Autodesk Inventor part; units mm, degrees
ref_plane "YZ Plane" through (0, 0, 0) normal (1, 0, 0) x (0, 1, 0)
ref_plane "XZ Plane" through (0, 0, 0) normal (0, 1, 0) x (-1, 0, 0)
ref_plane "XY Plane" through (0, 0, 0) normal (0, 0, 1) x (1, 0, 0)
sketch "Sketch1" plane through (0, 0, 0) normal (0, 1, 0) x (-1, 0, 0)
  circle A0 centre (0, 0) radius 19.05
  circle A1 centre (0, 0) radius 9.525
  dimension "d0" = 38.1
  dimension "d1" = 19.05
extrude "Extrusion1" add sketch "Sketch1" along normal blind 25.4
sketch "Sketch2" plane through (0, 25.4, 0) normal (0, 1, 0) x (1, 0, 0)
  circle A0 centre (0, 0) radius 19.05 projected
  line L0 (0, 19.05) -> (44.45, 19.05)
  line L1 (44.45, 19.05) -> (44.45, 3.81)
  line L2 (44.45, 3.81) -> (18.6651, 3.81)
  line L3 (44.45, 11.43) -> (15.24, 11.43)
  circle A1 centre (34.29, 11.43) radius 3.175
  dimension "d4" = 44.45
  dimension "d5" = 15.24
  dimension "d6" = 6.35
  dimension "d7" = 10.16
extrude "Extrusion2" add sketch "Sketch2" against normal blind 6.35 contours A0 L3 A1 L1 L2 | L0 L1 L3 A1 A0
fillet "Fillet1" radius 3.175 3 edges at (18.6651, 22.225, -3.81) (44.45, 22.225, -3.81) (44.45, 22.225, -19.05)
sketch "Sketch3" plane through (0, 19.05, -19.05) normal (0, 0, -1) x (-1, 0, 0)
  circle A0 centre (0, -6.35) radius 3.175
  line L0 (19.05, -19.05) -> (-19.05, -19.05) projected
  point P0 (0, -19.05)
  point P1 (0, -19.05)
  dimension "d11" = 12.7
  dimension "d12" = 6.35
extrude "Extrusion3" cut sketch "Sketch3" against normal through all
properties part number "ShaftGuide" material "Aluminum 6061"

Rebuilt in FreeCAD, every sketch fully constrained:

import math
import FreeCAD as App
import Part
import Sketcher
from FreeCAD import Vector
Q = App.Units.Quantity


def edges_at(feature, points):
    """Names of the edges that pass closest to the given points."""
    edges = feature.Shape.Edges
    near = lambda p: min(range(len(edges)), key=lambda i: edges[i].distToShape(Part.Vertex(*p))[0])
    return sorted({f"Edge{near(p) + 1}" for p in points})

doc = App.newDocument("Part")
params = doc.addObject("Spreadsheet::Sheet", "Params")
for row, (alias, value) in enumerate([
    ("sketch1_diameter", "1.5 in"),
    ("sketch1_diameter2", "0.75 in"),
    ("pad1_length", "1 in"),
    ("sketch2_diameter", "0.25 in"),
    ("sketch2_height", "0.6 in"),
    ("sketch2_width", "1.75 in"),
    ("sketch2_radius", "0.75 in"),
    ("pad2_length", "0.25 in"),
    ("fillet_radius", "0.125 in"),
    ("sketch3_diameter", "0.25 in"),
], start=1):
    params.set(f"A{row}", alias)
    params.set(f"B{row}", "=" + value)
    params.setAlias(f"B{row}", alias)

body = doc.addObject("PartDesign::Body", "Body")

# Sketch on XZ plane
sketch1 = body.newObject("Sketcher::SketchObject", "Sketch")
sketch1.AttachmentSupport = (doc.getObject("XZ_Plane"), [""])
sketch1.MapMode = "FlatFace"
sketch1.addGeometry([
    Part.Circle(Vector(0, 0, 0), Vector(0, 0, 1), 19),
    Part.Circle(Vector(0, 0, 0), Vector(0, 0, 1), 10),
], False)
sketch1.addConstraint([
    Sketcher.Constraint("Coincident", 0, 3, -1, 1),
    Sketcher.Constraint("Coincident", 1, 3, -1, 1),
    Sketcher.Constraint("Diameter", 0, Q("1.5 in")),
    Sketcher.Constraint("Diameter", 1, Q("0.75 in")),
])
sketch1.setExpression("Constraints[2]", "Params.sketch1_diameter")
sketch1.setExpression("Constraints[3]", "Params.sketch1_diameter2")
pad1 = body.newObject("PartDesign::Pad", "Pad")
pad1.Profile = sketch1
pad1.setExpression("Length", "Params.pad1_length")
pad1.Reversed = True

# Sketch on XZ plane
sketch2 = body.newObject("Sketcher::SketchObject", "Sketch001")
sketch2.AttachmentSupport = (doc.getObject("XZ_Plane"), [""])
sketch2.MapMode = "FlatFace"
sketch2.AttachmentOffset = App.Placement(Vector(0, 0, -1 * 25.4), App.Rotation())
sketch2.addGeometry([
    Part.LineSegment(Vector(18.7, -3.8, 0), Vector(44.5, -3.8, 0)),  # 0
    Part.LineSegment(Vector(44.5, -3.8, 0), Vector(44.5, -19.1, 0)),  # 1
    Part.LineSegment(Vector(44.5, -19.1, 0), Vector(0, -19.1, 0)),  # 2
    Part.ArcOfCircle(Part.Circle(Vector(0, 0, 0), Vector(0, 0, 1), 19.1), math.radians(-90), math.radians(-12)),  # 3
    Part.Circle(Vector(34.3, -11.4, 0), Vector(0, 0, 1), 3.2),  # 4
], False)
sketch2.addConstraint([
    Sketcher.Constraint("Coincident", 0, 2, 1, 1),
    Sketcher.Constraint("Coincident", 1, 2, 2, 1),
    Sketcher.Constraint("Tangent", 2, 2, 3, 1),
    Sketcher.Constraint("Coincident", 3, 2, 0, 1),
    Sketcher.Constraint("Horizontal", 0),
    Sketcher.Constraint("Vertical", 1),
    Sketcher.Constraint("Horizontal", 2),
    Sketcher.Constraint("Coincident", 3, 3, -1, 1),
    Sketcher.Constraint("Diameter", 4, Q("0.25 in")),
    Sketcher.Constraint("DistanceY", 1, 2, 1, 1, Q("0.6 in")),
    Sketcher.Constraint("DistanceX", 2, 2, 2, 1, Q("1.75 in")),
    Sketcher.Constraint("DistanceX", 4, 3, 0, 2, Q("0.4 in")),
    Sketcher.Constraint("Radius", 3, Q("0.75 in")),
    Sketcher.Constraint("DistanceY", 4, 3, 0, 2, Q("0.3 in")),
])
sketch2.setExpression("Constraints[8]", "Params.sketch2_diameter")
sketch2.setExpression("Constraints[9]", "Params.sketch2_height")
sketch2.setExpression("Constraints[10]", "Params.sketch2_width")
sketch2.setExpression("Constraints[12]", "Params.sketch2_radius")
pad2 = body.newObject("PartDesign::Pad", "Pad001")
pad2.Profile = sketch2
pad2.setExpression("Length", "Params.pad2_length")
doc.recompute()

fillet = body.newObject("PartDesign::Fillet", "Fillet")
fillet.Base = (pad2, edges_at(pad2, [(18.665, 22.225, -3.81), (44.45, 22.225, -3.81), (44.45, 22.225, -19.05)]))
fillet.setExpression("Radius", "Params.fillet_radius")

# Sketch on XY plane
sketch3 = body.newObject("Sketcher::SketchObject", "Sketch002")
sketch3.AttachmentSupport = (doc.getObject("XY_Plane"), [""])
sketch3.MapMode = "FlatFace"
sketch3.AttachmentOffset = App.Placement(Vector(0, 0, -0.75 * 25.4), App.Rotation())
sketch3.addGeometry(Part.Circle(Vector(0, 12.7, 0), Vector(0, 0, 1), 3.2), False)
sketch3.addConstraint([
    Sketcher.Constraint("PointOnObject", 0, 3, -2),
    Sketcher.Constraint("Diameter", 0, Q("0.25 in")),
    Sketcher.Constraint("DistanceY", -1, 1, 0, 3, Q("0.5 in")),
])
sketch3.setExpression("Constraints[1]", "Params.sketch3_diameter")
pocket1 = body.newObject("PartDesign::Pocket", "Pocket")
pocket1.Profile = sketch3
pocket1.Type = "ThroughAll"
pocket1.Reversed = True

doc.recompute()
